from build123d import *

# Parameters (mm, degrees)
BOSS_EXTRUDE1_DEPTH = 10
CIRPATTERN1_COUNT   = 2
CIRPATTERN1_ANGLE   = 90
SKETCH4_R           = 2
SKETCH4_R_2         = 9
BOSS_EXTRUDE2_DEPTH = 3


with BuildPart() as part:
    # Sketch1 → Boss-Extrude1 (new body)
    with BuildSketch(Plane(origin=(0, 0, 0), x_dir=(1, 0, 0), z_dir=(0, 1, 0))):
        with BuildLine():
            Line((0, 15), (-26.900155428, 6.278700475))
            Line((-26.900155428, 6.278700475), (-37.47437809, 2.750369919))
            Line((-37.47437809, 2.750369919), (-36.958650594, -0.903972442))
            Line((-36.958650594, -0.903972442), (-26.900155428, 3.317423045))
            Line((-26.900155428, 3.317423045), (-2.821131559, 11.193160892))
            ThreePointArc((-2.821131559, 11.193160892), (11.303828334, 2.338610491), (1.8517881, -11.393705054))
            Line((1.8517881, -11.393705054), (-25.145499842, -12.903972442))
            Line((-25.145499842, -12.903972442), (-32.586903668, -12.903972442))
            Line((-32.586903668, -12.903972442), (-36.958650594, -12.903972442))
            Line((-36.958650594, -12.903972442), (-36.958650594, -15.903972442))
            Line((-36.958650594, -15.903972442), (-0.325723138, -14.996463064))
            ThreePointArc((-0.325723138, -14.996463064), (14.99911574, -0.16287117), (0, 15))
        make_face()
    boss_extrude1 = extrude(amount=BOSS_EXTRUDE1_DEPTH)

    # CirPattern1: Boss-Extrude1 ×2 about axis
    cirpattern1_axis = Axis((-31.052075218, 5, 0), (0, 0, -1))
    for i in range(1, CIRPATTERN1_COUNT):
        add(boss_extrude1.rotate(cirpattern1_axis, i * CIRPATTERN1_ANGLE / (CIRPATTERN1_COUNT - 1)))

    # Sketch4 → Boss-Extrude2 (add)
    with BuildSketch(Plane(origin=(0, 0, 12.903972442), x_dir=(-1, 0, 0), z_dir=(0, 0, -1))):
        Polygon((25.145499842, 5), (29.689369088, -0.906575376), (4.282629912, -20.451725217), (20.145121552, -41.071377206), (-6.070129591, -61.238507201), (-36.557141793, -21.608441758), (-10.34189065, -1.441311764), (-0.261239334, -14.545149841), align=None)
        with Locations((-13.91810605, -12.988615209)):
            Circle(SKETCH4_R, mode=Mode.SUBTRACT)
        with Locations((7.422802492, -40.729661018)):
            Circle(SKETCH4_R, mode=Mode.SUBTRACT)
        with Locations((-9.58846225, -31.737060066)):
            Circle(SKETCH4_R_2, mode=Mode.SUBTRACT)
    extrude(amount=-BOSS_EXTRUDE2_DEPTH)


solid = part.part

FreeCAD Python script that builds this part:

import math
import FreeCAD as App
import Part
import Sketcher
from FreeCAD import Vector
Q = App.Units.Quantity


def add_polygon(sketch, points):
    """Adds a closed chain of lines whose ends are joined by coincident constraints."""
    first, n = sketch.GeometryCount, len(points)
    for a, b in zip(points, points[1:] + points[:1]):
        sketch.addGeometry(Part.LineSegment(App.Vector(*a, 0), App.Vector(*b, 0)), False)
    for i in range(n):
        sketch.addConstraint(Sketcher.Constraint("Coincident", first + i, 2, first + (i + 1) % n, 1))

doc = App.newDocument("Part")
body = doc.addObject("PartDesign::Body", "Body")

# Sketch on XZ plane
sketch1 = doc.addObject("Sketcher::SketchObject", "Sketch")
body.addObject(sketch1)
sketch1.AttachmentSupport = (doc.XZ_Plane, [""])
sketch1.MapMode = "FlatFace"
sketch1.addGeometry(Part.LineSegment(Vector(0, -15, 0), Vector(-26.900155, -6.2787, 0)), False)
sketch1.addGeometry(Part.LineSegment(Vector(-26.900155, -6.2787, 0), Vector(-37.474378, -2.75037, 0)), False)
sketch1.addGeometry(Part.LineSegment(Vector(-37.474378, -2.75037, 0), Vector(-36.958651, 0.903972, 0)), False)
sketch1.addGeometry(Part.LineSegment(Vector(-36.958651, 0.903972, 0), Vector(-26.900155, -3.317423, 0)), False)
sketch1.addGeometry(Part.LineSegment(Vector(-26.900155, -3.317423, 0), Vector(-2.821132, -11.193161, 0)), False)
sketch1.addGeometry(Part.ArcOfCircle(Part.Circle(Vector(0, 0, 0), Vector(0, 0, 1), 11.543207), math.radians(-104.146234), math.radians(80.76859)), False)
sketch1.addGeometry(Part.LineSegment(Vector(1.851788, 11.393705, 0), Vector(-25.1455, 12.903972, 0)), False)
sketch1.addGeometry(Part.LineSegment(Vector(-25.1455, 12.903972, 0), Vector(-36.958651, 12.903972, 0)), False)
sketch1.addGeometry(Part.LineSegment(Vector(-36.958651, 12.903972, 0), Vector(-36.958651, 15.903972, 0)), False)
sketch1.addGeometry(Part.LineSegment(Vector(-36.958651, 15.903972, 0), Vector(-0.325723, 14.996463, 0)), False)
sketch1.addGeometry(Part.ArcOfCircle(Part.Circle(Vector(0, 0, 0), Vector(0, 0, 1), 15), math.radians(-90), math.radians(91.244269)), False)
sketch1.addConstraint(Sketcher.Constraint("Coincident", 0, 2, 1, 1))
sketch1.addConstraint(Sketcher.Constraint("Coincident", 1, 2, 2, 1))
sketch1.addConstraint(Sketcher.Constraint("Coincident", 2, 2, 3, 1))
sketch1.addConstraint(Sketcher.Constraint("Coincident", 3, 2, 4, 1))
sketch1.addConstraint(Sketcher.Constraint("Coincident", 4, 2, 5, 1))
sketch1.addConstraint(Sketcher.Constraint("Coincident", 5, 2, 6, 1))
sketch1.addConstraint(Sketcher.Constraint("Coincident", 6, 2, 7, 1))
sketch1.addConstraint(Sketcher.Constraint("Coincident", 7, 2, 8, 1))
sketch1.addConstraint(Sketcher.Constraint("Coincident", 8, 2, 9, 1))
sketch1.addConstraint(Sketcher.Constraint("Coincident", 9, 2, 10, 2))
sketch1.addConstraint(Sketcher.Constraint("Coincident", 10, 1, 0, 1))
sketch1.addConstraint(Sketcher.Constraint("Horizontal", 7))
sketch1.addConstraint(Sketcher.Constraint("Vertical", 8))
sketch1.addConstraint(Sketcher.Constraint("Coincident", 5, 3, -1, 1))
sketch1.addConstraint(Sketcher.Constraint("Coincident", 10, 3, -1, 1))
sketch1.addConstraint(Sketcher.Constraint("PointOnObject", 10, 1, -2))
sketch1.addConstraint(Sketcher.Constraint("Vertical", 0, 2, 3, 2))
sketch1.addConstraint(Sketcher.Constraint("Vertical", 2, 2, 7, 2))
sketch1.addConstraint(Sketcher.Constraint("Radius", 10, Q("15 mm")))
sketch1.addConstraint(Sketcher.Constraint("DistanceY", 8, 1, 8, 2, Q("3 mm")))
sketch1.addConstraint(Sketcher.Constraint("DistanceY", 2, 2, 6, 2, Q("12 mm")))
sketch1.addConstraint(Sketcher.Constraint("Radius", 5, Q("11.543207 mm")))
sketch1.addConstraint(Sketcher.Constraint("Distance", 6, Q("27.039498 mm")))
sketch1.addConstraint(Sketcher.Constraint("DistanceX", 7, 2, 7, 1, Q("11.813151 mm")))
sketch1.addConstraint(Sketcher.Constraint("DistanceY", 0, 2, -1, 1, Q("6.2787 mm")))
sketch1.addConstraint(Sketcher.Constraint("DistanceX", 6, 2, -1, 1, Q("25.1455 mm")))
sketch1.addConstraint(Sketcher.Constraint("DistanceX", 1, 2, -1, 1, Q("37.474378 mm")))
sketch1.addConstraint(Sketcher.Constraint("DistanceY", 1, 2, -1, 1, Q("2.75037 mm")))
sketch1.addConstraint(Sketcher.Constraint("DistanceX", 4, 2, -1, 1, Q("2.821132 mm")))
sketch1.addConstraint(Sketcher.Constraint("DistanceY", 3, 2, 5, 2, Q("14.711128 mm")))
sketch1.addConstraint(Sketcher.Constraint("DistanceX", 9, 2, 5, 2, Q("2.177511 mm")))
sketch1.addConstraint(Sketcher.Constraint("DistanceY", 6, 2, 9, 2, Q("2.092491 mm")))
sketch1.addConstraint(Sketcher.Constraint("Distance", 0, Q("28.278604 mm")))
pad1 = doc.addObject("PartDesign::Pad", "Pad")
body.addObject(pad1)
pad1.Profile = sketch1
pad1.Length = 10
pad1.Reversed = True
doc.recompute()

datumline = doc.addObject("PartDesign::Line", "DatumLine")
body.addObject(datumline)
datumline.Placement = App.Placement(Vector(-31.052075, 5, 0), App.Rotation(Vector(0, 0, 1), Vector(0, 0, -1)))
polarpattern = doc.addObject("PartDesign::PolarPattern", "PolarPattern")
body.addObject(polarpattern)
polarpattern.Originals = [pad1]
polarpattern.Axis = (datumline, [""])
polarpattern.Angle = 90
polarpattern.Occurrences = 2
body.Tip = polarpattern

# Sketch on XY plane
sketch2 = doc.addObject("Sketcher::SketchObject", "Sketch001")
body.addObject(sketch2)
sketch2.AttachmentSupport = (doc.XY_Plane, [""])
sketch2.MapMode = "FlatFace"
sketch2.AttachmentOffset = App.Placement(Vector(0, 0, 12.903972), App.Rotation())
add_polygon(sketch2, [(-29.689369, -0.906575), (-25.1455, 5), (0.261239, -14.54515), (10.341891, -1.441312), (36.557142, -21.608442), (6.07013, -61.238507), (-20.145122, -41.071377), (-4.28263, -20.451725)])  # lines 0-7
sketch2.addGeometry(Part.Circle(Vector(-7.422802, -40.729661, 0), Vector(0, 0, 1), 2), False)  # 8
sketch2.addGeometry(Part.Circle(Vector(9.588462, -31.73706, 0), Vector(0, 0, 1), 9), False)  # 9
sketch2.addGeometry(Part.Circle(Vector(13.918106, -12.988615, 0), Vector(0, 0, 1), 2), False)  # 10
sketch2.addConstraint(Sketcher.Constraint("Equal", 8, 10))
sketch2.addConstraint(Sketcher.Constraint("Perpendicular", 0, 1))
sketch2.addConstraint(Sketcher.Constraint("Perpendicular", 1, 2))
sketch2.addConstraint(Sketcher.Constraint("Perpendicular", 2, 3))
sketch2.addConstraint(Sketcher.Constraint("Perpendicular", 3, 4))
sketch2.addConstraint(Sketcher.Constraint("Perpendicular", 4, 5))
sketch2.addConstraint(Sketcher.Constraint("Perpendicular", 5, 6))
sketch2.addConstraint(Sketcher.Constraint("Perpendicular", 6, 7))
sketch2.addConstraint(Sketcher.Constraint("Equal", 3, 5))
sketch2.addConstraint(Sketcher.Constraint("Diameter", 8, Q("4 mm")))
sketch2.addConstraint(Sketcher.Constraint("Diameter", 9, Q("18 mm")))
sketch2.addConstraint(Sketcher.Constraint("Distance", 4, Q("50 mm")))
sketch2.addConstraint(Sketcher.Constraint("DistanceY", -1, 1, 0, 2, Q("5 mm")))
sketch2.addConstraint(Sketcher.Constraint("Distance", 2, Q("16.532698 mm")))
sketch2.addConstraint(Sketcher.Constraint("DistanceX", 0, 2, -1, 1, Q("25.1455 mm")))
sketch2.addConstraint(Sketcher.Constraint("DistanceY", 8, 3, 9, 3, Q("8.992601 mm")))
sketch2.addConstraint(Sketcher.Constraint("DistanceY", 5, 2, 7, 2, Q("40.164802 mm")))
sketch2.addConstraint(Sketcher.Constraint("Distance", 0, Q("7.452139 mm")))
sketch2.addConstraint(Sketcher.Constraint("Distance", 1, Q("32.054879 mm")))
sketch2.addConstraint(Sketcher.Constraint("DistanceY", 8, 3, -1, 1, Q("40.729661 mm")))
sketch2.addConstraint(Sketcher.Constraint("DistanceX", -1, 1, 3, 2, Q("36.557142 mm")))
sketch2.addConstraint(Sketcher.Constraint("DistanceX", 8, 3, 10, 3, Q("21.340909 mm")))
sketch2.addConstraint(Sketcher.Constraint("DistanceX", 8, 3, 1, 2, Q("7.684042 mm")))
sketch2.addConstraint(Sketcher.Constraint("DistanceX", 9, 3, 2, 2, Q("0.753428 mm")))
sketch2.addConstraint(Sketcher.Constraint("DistanceY", 4, 2, 10, 3, Q("48.249892 mm")))
pad2 = doc.addObject("PartDesign::Pad", "Pad001")
body.addObject(pad2)
pad2.Profile = sketch2
pad2.Length = 3

doc.recompute()
